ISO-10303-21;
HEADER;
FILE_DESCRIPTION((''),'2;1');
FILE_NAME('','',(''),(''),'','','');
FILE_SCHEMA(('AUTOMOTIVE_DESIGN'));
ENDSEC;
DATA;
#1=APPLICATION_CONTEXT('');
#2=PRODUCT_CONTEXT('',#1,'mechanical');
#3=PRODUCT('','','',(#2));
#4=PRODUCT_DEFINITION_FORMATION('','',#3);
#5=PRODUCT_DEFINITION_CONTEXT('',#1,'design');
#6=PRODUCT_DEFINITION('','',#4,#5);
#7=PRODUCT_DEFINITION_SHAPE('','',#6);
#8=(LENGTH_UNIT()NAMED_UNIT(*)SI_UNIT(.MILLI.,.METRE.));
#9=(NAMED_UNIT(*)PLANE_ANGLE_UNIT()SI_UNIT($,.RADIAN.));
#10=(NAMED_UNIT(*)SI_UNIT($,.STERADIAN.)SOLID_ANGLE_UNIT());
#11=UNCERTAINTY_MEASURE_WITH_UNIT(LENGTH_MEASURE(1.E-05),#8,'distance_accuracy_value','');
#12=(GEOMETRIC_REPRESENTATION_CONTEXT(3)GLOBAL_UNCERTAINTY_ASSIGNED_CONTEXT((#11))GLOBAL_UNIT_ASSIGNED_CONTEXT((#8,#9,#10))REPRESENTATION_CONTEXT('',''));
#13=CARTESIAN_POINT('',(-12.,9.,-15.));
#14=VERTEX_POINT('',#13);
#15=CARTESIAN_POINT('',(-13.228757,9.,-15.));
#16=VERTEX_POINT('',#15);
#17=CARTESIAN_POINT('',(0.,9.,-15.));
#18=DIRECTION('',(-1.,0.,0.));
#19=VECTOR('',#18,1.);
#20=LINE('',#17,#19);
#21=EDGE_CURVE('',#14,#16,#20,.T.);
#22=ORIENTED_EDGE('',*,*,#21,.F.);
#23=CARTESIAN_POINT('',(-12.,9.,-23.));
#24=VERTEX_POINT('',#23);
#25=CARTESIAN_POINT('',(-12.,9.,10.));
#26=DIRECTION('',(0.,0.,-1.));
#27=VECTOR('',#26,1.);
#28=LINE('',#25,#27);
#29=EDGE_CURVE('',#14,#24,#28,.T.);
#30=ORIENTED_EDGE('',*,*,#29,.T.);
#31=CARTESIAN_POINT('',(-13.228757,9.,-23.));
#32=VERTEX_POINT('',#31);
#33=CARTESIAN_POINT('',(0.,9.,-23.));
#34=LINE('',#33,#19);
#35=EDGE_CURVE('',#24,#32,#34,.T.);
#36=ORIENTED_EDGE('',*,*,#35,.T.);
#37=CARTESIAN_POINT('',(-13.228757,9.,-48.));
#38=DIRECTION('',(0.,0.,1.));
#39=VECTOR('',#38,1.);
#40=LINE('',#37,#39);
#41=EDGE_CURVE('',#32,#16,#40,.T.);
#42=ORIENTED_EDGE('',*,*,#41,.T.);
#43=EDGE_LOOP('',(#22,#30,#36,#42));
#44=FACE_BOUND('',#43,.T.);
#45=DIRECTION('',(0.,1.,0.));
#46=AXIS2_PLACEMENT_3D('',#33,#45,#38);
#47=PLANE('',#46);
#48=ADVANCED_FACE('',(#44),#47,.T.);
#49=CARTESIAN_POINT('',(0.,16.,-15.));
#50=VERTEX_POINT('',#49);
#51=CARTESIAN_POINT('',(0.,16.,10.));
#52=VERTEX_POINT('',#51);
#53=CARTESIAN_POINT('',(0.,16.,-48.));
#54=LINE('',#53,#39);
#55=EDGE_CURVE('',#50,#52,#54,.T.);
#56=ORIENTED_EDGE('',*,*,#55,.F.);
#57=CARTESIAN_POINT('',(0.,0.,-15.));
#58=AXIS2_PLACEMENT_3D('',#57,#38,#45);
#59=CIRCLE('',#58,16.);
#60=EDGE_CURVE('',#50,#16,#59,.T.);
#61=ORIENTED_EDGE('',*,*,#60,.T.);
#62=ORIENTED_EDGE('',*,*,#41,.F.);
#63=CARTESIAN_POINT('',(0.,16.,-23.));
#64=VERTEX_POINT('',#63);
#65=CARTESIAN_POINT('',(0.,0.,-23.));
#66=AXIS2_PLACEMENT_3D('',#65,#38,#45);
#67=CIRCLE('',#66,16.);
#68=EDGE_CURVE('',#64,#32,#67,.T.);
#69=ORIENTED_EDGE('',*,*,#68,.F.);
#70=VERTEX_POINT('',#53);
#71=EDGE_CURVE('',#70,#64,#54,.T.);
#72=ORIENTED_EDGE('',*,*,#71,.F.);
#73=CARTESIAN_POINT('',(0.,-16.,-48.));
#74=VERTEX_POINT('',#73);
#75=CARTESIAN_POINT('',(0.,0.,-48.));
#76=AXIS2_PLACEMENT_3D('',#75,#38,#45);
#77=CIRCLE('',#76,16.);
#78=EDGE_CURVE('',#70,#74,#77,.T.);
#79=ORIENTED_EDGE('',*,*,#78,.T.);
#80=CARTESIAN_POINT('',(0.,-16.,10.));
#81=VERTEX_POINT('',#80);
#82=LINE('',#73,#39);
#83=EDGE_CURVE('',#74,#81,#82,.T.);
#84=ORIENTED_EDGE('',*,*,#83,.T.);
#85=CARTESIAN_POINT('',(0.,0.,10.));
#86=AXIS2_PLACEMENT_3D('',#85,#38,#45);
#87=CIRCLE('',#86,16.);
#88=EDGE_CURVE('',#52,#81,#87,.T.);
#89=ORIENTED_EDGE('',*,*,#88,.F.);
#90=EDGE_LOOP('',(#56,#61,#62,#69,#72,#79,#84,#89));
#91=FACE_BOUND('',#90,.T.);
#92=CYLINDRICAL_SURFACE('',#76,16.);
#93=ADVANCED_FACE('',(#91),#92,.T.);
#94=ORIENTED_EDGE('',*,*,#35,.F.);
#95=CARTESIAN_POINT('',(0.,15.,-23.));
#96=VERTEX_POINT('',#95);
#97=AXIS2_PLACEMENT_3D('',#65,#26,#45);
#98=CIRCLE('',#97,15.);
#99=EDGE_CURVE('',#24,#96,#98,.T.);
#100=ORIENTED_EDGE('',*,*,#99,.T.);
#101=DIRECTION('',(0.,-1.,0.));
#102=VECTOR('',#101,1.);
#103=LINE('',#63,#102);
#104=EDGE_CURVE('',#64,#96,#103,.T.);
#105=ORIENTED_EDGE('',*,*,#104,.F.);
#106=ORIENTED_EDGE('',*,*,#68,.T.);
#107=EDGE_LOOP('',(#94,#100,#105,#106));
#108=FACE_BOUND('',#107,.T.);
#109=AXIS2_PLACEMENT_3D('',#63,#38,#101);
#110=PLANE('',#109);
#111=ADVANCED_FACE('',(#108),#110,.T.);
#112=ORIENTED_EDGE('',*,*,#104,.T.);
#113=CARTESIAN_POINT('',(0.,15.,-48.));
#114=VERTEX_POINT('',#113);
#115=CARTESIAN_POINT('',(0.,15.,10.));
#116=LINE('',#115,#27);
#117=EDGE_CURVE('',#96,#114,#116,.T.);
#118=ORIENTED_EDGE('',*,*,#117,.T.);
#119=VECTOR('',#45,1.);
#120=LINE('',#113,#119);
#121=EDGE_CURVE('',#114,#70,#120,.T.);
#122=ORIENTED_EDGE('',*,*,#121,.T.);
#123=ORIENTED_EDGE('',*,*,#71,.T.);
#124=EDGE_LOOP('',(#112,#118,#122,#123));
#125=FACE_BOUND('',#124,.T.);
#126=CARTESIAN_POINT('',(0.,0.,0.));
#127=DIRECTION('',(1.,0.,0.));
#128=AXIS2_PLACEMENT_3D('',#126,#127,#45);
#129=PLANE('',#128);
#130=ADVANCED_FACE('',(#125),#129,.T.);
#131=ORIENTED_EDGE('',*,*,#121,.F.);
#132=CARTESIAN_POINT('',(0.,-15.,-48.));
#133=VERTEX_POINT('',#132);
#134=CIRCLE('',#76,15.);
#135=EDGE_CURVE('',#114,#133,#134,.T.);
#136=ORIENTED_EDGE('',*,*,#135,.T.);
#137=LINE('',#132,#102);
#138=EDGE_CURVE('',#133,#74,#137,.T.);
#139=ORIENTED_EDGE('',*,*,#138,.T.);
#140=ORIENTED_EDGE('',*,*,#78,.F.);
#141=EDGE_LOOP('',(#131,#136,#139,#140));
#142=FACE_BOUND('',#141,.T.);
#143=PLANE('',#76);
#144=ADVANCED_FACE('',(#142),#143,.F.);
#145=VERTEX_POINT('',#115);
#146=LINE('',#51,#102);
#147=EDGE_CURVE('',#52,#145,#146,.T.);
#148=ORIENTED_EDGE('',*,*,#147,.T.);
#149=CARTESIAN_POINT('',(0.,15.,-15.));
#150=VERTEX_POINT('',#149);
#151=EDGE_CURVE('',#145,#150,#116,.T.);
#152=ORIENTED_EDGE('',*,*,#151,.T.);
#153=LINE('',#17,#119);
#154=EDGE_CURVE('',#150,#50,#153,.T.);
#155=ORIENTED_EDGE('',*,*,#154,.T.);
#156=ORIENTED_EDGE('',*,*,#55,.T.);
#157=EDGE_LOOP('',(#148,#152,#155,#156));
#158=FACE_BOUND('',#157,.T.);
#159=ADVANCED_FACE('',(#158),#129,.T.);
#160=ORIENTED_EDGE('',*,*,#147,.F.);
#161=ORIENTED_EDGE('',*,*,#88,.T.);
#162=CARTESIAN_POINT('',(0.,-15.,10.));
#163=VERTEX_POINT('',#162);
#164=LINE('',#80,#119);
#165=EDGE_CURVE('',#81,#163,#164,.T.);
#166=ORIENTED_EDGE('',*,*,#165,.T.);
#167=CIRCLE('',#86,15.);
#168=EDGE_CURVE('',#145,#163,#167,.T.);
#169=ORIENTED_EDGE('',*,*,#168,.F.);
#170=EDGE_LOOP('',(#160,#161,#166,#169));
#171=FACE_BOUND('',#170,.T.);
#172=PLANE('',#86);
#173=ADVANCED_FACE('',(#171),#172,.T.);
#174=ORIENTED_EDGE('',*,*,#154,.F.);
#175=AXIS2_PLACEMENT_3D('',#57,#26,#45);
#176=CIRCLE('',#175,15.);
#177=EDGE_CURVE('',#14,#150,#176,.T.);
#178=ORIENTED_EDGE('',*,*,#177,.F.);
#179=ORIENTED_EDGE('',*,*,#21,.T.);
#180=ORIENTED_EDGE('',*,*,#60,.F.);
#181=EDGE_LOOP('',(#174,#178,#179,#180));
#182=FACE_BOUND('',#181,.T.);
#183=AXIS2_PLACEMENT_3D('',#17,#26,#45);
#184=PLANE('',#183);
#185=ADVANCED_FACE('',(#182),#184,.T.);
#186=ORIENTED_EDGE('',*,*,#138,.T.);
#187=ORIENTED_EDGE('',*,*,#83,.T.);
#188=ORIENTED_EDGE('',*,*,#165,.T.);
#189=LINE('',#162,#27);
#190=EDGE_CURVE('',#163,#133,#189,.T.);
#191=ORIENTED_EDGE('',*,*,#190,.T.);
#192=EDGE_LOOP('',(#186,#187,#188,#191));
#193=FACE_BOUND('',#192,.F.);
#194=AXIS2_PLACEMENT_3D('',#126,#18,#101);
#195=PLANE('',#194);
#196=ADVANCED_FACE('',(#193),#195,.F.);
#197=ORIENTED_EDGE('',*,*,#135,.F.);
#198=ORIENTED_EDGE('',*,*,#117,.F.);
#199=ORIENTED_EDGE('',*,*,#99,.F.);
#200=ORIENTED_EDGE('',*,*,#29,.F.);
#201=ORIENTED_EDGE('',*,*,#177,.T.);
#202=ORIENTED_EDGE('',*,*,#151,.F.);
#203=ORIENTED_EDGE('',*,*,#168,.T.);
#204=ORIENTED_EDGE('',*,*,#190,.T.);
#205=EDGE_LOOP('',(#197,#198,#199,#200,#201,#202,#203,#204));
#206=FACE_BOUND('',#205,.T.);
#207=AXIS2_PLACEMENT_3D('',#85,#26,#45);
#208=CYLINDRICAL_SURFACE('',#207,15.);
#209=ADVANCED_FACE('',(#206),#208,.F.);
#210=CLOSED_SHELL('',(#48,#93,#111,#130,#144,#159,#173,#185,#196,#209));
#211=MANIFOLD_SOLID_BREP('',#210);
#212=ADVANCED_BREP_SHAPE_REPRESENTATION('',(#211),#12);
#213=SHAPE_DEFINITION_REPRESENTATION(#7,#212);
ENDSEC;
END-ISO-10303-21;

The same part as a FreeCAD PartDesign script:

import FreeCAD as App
import Part
import Sketcher
from FreeCAD import Vector

doc = App.newDocument("Part")
body = doc.addObject("PartDesign::Body", "Body")

sketch1 = body.newObject("Sketcher::SketchObject", "Sketch")
sketch1.AttachmentSupport = (doc.getObject("YZ_Plane"), [""])
sketch1.MapMode = "FlatFace"
sketch1.addGeometry(Part.LineSegment(Vector(15, 10, 0), Vector(15, -48, 0)), False)
sketch1.addGeometry(Part.LineSegment(Vector(15, -48, 0), Vector(16, -48, 0)), False)
sketch1.addGeometry(Part.LineSegment(Vector(16, -48, 0), Vector(16, 10, 0)), False)
sketch1.addGeometry(Part.LineSegment(Vector(16, 10, 0), Vector(15, 10, 0)), False)
sketch1.addConstraint(Sketcher.Constraint("Coincident", 0, 2, 1, 1))
sketch1.addConstraint(Sketcher.Constraint("Coincident", 1, 2, 2, 1))
sketch1.addConstraint(Sketcher.Constraint("Coincident", 2, 2, 3, 1))
sketch1.addConstraint(Sketcher.Constraint("Coincident", 3, 2, 0, 1))
sketch1.addConstraint(Sketcher.Constraint("Vertical", 0))
sketch1.addConstraint(Sketcher.Constraint("Horizontal", 1))
sketch1.addConstraint(Sketcher.Constraint("Vertical", 2))
sketch1.addConstraint(Sketcher.Constraint("Horizontal", 3))
sketch1.addConstraint(Sketcher.Constraint("DistanceX", 1, 1, 1, 2, 1.0))
sketch1.addConstraint(Sketcher.Constraint("DistanceY", 0, 2, 0, 1, 58.0))
sketch1.addConstraint(Sketcher.Constraint("DistanceX", -1, 1, 0, 2, 15.0))
sketch1.addConstraint(Sketcher.Constraint("DistanceY", 0, 2, -1, 1, 48.0))
revolution = body.newObject("PartDesign::Revolution", "Revolution")
revolution.Profile = sketch1
revolution.ReferenceAxis = (sketch1, ["V_Axis"])
revolution.Angle = 180

sketch2 = body.newObject("Sketcher::SketchObject", "Sketch001")
sketch2.AttachmentSupport = (doc.getObject("YZ_Plane"), [""])
sketch2.MapMode = "FlatFace"
sketch2.addGeometry(Part.LineSegment(Vector(9, -23, 0), Vector(16, -23, 0)), False)
sketch2.addGeometry(Part.LineSegment(Vector(16, -23, 0), Vector(16, -15, 0)), False)
sketch2.addGeometry(Part.LineSegment(Vector(16, -15, 0), Vector(9, -15, 0)), False)
sketch2.addGeometry(Part.LineSegment(Vector(9, -15, 0), Vector(9, -23, 0)), False)
sketch2.addConstraint(Sketcher.Constraint("Coincident", 0, 2, 1, 1))
sketch2.addConstraint(Sketcher.Constraint("Coincident", 1, 2, 2, 1))
sketch2.addConstraint(Sketcher.Constraint("Coincident", 2, 2, 3, 1))
sketch2.addConstraint(Sketcher.Constraint("Coincident", 3, 2, 0, 1))
sketch2.addConstraint(Sketcher.Constraint("Horizontal", 0))
sketch2.addConstraint(Sketcher.Constraint("Vertical", 1))
sketch2.addConstraint(Sketcher.Constraint("Horizontal", 2))
sketch2.addConstraint(Sketcher.Constraint("Vertical", 3))
sketch2.addConstraint(Sketcher.Constraint("DistanceX", 0, 1, 0, 2, 7.0))
sketch2.addConstraint(Sketcher.Constraint("DistanceY", 1, 1, 1, 2, 8.0))
sketch2.addConstraint(Sketcher.Constraint("DistanceX", -1, 1, 0, 2, 16.0))
sketch2.addConstraint(Sketcher.Constraint("DistanceY", 0, 2, -1, 1, 23.0))
pocket1 = body.newObject("PartDesign::Pocket", "Pocket")
pocket1.Profile = sketch2
pocket1.Type = "ThroughAll"

doc.recompute()
